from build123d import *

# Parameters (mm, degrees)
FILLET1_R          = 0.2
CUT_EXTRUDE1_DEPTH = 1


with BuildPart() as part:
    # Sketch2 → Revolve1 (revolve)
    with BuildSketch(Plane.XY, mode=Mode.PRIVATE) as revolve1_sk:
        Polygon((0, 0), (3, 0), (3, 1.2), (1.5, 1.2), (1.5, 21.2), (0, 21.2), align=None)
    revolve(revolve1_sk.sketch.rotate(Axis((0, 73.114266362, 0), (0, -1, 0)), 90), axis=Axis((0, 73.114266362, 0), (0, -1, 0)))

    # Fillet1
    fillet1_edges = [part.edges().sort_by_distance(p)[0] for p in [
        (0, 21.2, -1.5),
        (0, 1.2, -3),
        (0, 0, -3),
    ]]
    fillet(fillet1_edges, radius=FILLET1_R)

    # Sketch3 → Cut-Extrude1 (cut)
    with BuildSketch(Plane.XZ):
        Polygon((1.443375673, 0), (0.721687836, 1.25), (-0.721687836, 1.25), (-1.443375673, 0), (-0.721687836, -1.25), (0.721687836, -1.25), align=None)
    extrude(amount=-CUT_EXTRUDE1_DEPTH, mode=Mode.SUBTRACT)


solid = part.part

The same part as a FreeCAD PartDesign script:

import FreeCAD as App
import Part
import Sketcher
Q = App.Units.Quantity


def edges_at(feature, points):
    """Names of the edges that pass closest to the given points."""
    edges = feature.Shape.Edges
    near = lambda p: min(range(len(edges)), key=lambda i: edges[i].distToShape(Part.Vertex(*p))[0])
    return sorted({f"Edge{near(p) + 1}" for p in points})


def add_polygon(sketch, points):
    """Adds a closed chain of lines whose ends are joined by coincident constraints."""
    first, n = sketch.GeometryCount, len(points)
    for a, b in zip(points, points[1:] + points[:1]):
        sketch.addGeometry(Part.LineSegment(App.Vector(*a, 0), App.Vector(*b, 0)), False)
    for i in range(n):
        sketch.addConstraint(Sketcher.Constraint("Coincident", first + i, 2, first + (i + 1) % n, 1))

doc = App.newDocument("Part")
body = doc.addObject("PartDesign::Body", "Body")

# Sketch on XY plane
sketch1 = doc.addObject("Sketcher::SketchObject", "Sketch")
body.addObject(sketch1)
sketch1.AttachmentSupport = (doc.XY_Plane, [""])
sketch1.MapMode = "FlatFace"
add_polygon(sketch1, [(0, 0), (3, 0), (3, 1.2), (1.5, 1.2), (1.5, 21.2), (0, 21.2)])  # lines 0-5
sketch1.addConstraint([
    Sketcher.Constraint("Horizontal", 0),
    Sketcher.Constraint("Vertical", 1),
    Sketcher.Constraint("Horizontal", 2),
    Sketcher.Constraint("Vertical", 3),
    Sketcher.Constraint("Horizontal", 4),
    Sketcher.Constraint("Vertical", 5),
    Sketcher.Constraint("Coincident", 5, 2, -1, 1),
    Sketcher.Constraint("Equal", 2, 4),
    Sketcher.Constraint("DistanceX", 0, 1, 0, 2, Q("3 mm")),
    Sketcher.Constraint("DistanceY", 3, 1, 3, 2, Q("20 mm")),
    Sketcher.Constraint("DistanceY", 1, 1, 1, 2, Q("1.2 mm")),
])
revolution = doc.addObject("PartDesign::Revolution", "Revolution")
body.addObject(revolution)
revolution.Profile = sketch1
revolution.ReferenceAxis = (sketch1, ["V_Axis"])
revolution.Angle = 360
doc.recompute()

fillet = doc.addObject("PartDesign::Fillet", "Fillet")
body.addObject(fillet)
fillet.Base = (revolution, edges_at(revolution, [(0, 21.2, -1.5), (0, 1.2, -3), (0, 0, -3)]))
fillet.Radius = 0.2

# Sketch on XZ plane
sketch2 = doc.addObject("Sketcher::SketchObject", "Sketch001")
body.addObject(sketch2)
sketch2.AttachmentSupport = (doc.XZ_Plane, [""])
sketch2.MapMode = "FlatFace"
add_polygon(sketch2, [(1.4, 0), (0.7, 1.2), (-0.7, 1.2), (-1.4, 0), (-0.7, -1.2), (0.7, -1.2)])  # lines 0-5
sketch2.addConstraint([
    Sketcher.Constraint("Horizontal", 1),
    Sketcher.Constraint("Horizontal", 4),
    Sketcher.Constraint("Symmetric", 0, 2, 3, 2, -1, 1),
    Sketcher.Constraint("Symmetric", 2, 2, 5, 2, -1, 1),
    Sketcher.Constraint("PointOnObject", 2, 2, -1),
    Sketcher.Constraint("Parallel", 2, 5),
    Sketcher.Constraint("Vertical", 1, 2, 3, 2),
    Sketcher.Constraint("Angle", 0, Q("120 deg")),
    Sketcher.Constraint("DistanceY", 3, 2, 1, 2, Q("2.5 mm")),
    Sketcher.Constraint("DistanceX", 1, 2, 1, 1, Q("1.443376 mm")),
])
pocket1 = doc.addObject("PartDesign::Pocket", "Pocket")
body.addObject(pocket1)
pocket1.Profile = sketch2
pocket1.Length = 1

doc.recompute()
